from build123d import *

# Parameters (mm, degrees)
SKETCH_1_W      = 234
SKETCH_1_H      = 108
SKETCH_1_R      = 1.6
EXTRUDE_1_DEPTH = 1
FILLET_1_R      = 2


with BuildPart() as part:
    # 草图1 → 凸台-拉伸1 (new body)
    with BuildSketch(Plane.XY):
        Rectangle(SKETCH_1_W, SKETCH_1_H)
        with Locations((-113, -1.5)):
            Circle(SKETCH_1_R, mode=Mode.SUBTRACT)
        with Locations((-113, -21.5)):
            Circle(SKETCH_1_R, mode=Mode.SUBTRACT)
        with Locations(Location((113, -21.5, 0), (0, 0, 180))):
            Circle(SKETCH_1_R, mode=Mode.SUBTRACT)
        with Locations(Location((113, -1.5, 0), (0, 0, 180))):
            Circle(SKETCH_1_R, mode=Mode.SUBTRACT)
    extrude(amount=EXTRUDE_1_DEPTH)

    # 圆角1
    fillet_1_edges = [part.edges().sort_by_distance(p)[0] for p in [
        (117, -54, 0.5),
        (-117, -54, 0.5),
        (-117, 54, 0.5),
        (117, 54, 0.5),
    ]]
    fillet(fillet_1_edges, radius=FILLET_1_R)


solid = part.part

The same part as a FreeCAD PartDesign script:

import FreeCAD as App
import Part
import Sketcher

V = App.Vector
Q = App.Units.Quantity


def edges_at(feature, points):
    """Names of the edges that pass closest to the given points."""
    edges = feature.Shape.Edges
    near = lambda p: min(range(len(edges)), key=lambda i: edges[i].distToShape(Part.Vertex(*p))[0])
    return sorted({f"Edge{near(p) + 1}" for p in points})


def add_polygon(sketch, points):
    """Adds a closed chain of lines whose ends are joined by coincident constraints."""
    first, n = sketch.GeometryCount, len(points)
    for a, b in zip(points, points[1:] + points[:1]):
        sketch.addGeometry(Part.LineSegment(App.Vector(*a, 0), App.Vector(*b, 0)), False)
    for i in range(n):
        sketch.addConstraint(Sketcher.Constraint("Coincident", first + i, 2, first + (i + 1) % n, 1))

doc = App.newDocument("Part")
body = doc.addObject("PartDesign::Body", "Body")

sketch1 = body.newObject("Sketcher::SketchObject", "Sketch")
sketch1.AttachmentSupport = (doc.getObject("XY_Plane"), [""])
sketch1.MapMode = "FlatFace"
add_polygon(sketch1, [(-117, 54), (-117, -54), (117, -54), (117, 54)])
sketch1.addGeometry(Part.Circle(V(-113, -21.5, 0), V(0, 0, 1), 1.6), False)
sketch1.addGeometry(Part.Circle(V(113, -21.5, 0), V(0, 0, 1), 1.6), False)
sketch1.addGeometry(Part.Circle(V(-113, -1.5, 0), V(0, 0, 1), 1.6), False)
sketch1.addGeometry(Part.Circle(V(113, -1.5, 0), V(0, 0, 1), 1.6), False)
sketch1.addConstraint([
    Sketcher.Constraint("Vertical", 0),
    Sketcher.Constraint("Horizontal", 1),
    Sketcher.Constraint("Vertical", 2),
    Sketcher.Constraint("Horizontal", 3),
    Sketcher.Constraint("Equal", 4, 5),
    Sketcher.Constraint("Equal", 5, 6),
    Sketcher.Constraint("Equal", 6, 7),
    Sketcher.Constraint("Symmetric", 0, 2, 2, 2, -1, 1),
    Sketcher.Constraint("Symmetric", 4, 3, 5, 3, -2),
    Sketcher.Constraint("Symmetric", 6, 3, 7, 3, -2),
    Sketcher.Constraint("Vertical", 4, 3, 6, 3),
    Sketcher.Constraint("Diameter", 4, Q("3.2 mm")),
    Sketcher.Constraint("DistanceX", 1, 1, 1, 2, Q("234 mm")),
    Sketcher.Constraint("DistanceY", 0, 2, 0, 1, Q("108 mm")),
    Sketcher.Constraint("DistanceX", 4, 3, -1, 1, Q("113 mm")),
    Sketcher.Constraint("DistanceY", 4, 3, 6, 3, Q("20 mm")),
    Sketcher.Constraint("DistanceY", 4, 3, -1, 1, Q("21.5 mm")),
])
pad1 = body.newObject("PartDesign::Pad", "Pad")
pad1.Profile = sketch1
pad1.Length = 1
doc.recompute()

fillet = body.newObject("PartDesign::Fillet", "Fillet")
fillet.Base = (pad1, edges_at(pad1, [
    (117, -54, 0.5),
    (-117, -54, 0.5),
    (-117, 54, 0.5),
    (117, 54, 0.5),
]))
fillet.Radius = 2

doc.recompute()
